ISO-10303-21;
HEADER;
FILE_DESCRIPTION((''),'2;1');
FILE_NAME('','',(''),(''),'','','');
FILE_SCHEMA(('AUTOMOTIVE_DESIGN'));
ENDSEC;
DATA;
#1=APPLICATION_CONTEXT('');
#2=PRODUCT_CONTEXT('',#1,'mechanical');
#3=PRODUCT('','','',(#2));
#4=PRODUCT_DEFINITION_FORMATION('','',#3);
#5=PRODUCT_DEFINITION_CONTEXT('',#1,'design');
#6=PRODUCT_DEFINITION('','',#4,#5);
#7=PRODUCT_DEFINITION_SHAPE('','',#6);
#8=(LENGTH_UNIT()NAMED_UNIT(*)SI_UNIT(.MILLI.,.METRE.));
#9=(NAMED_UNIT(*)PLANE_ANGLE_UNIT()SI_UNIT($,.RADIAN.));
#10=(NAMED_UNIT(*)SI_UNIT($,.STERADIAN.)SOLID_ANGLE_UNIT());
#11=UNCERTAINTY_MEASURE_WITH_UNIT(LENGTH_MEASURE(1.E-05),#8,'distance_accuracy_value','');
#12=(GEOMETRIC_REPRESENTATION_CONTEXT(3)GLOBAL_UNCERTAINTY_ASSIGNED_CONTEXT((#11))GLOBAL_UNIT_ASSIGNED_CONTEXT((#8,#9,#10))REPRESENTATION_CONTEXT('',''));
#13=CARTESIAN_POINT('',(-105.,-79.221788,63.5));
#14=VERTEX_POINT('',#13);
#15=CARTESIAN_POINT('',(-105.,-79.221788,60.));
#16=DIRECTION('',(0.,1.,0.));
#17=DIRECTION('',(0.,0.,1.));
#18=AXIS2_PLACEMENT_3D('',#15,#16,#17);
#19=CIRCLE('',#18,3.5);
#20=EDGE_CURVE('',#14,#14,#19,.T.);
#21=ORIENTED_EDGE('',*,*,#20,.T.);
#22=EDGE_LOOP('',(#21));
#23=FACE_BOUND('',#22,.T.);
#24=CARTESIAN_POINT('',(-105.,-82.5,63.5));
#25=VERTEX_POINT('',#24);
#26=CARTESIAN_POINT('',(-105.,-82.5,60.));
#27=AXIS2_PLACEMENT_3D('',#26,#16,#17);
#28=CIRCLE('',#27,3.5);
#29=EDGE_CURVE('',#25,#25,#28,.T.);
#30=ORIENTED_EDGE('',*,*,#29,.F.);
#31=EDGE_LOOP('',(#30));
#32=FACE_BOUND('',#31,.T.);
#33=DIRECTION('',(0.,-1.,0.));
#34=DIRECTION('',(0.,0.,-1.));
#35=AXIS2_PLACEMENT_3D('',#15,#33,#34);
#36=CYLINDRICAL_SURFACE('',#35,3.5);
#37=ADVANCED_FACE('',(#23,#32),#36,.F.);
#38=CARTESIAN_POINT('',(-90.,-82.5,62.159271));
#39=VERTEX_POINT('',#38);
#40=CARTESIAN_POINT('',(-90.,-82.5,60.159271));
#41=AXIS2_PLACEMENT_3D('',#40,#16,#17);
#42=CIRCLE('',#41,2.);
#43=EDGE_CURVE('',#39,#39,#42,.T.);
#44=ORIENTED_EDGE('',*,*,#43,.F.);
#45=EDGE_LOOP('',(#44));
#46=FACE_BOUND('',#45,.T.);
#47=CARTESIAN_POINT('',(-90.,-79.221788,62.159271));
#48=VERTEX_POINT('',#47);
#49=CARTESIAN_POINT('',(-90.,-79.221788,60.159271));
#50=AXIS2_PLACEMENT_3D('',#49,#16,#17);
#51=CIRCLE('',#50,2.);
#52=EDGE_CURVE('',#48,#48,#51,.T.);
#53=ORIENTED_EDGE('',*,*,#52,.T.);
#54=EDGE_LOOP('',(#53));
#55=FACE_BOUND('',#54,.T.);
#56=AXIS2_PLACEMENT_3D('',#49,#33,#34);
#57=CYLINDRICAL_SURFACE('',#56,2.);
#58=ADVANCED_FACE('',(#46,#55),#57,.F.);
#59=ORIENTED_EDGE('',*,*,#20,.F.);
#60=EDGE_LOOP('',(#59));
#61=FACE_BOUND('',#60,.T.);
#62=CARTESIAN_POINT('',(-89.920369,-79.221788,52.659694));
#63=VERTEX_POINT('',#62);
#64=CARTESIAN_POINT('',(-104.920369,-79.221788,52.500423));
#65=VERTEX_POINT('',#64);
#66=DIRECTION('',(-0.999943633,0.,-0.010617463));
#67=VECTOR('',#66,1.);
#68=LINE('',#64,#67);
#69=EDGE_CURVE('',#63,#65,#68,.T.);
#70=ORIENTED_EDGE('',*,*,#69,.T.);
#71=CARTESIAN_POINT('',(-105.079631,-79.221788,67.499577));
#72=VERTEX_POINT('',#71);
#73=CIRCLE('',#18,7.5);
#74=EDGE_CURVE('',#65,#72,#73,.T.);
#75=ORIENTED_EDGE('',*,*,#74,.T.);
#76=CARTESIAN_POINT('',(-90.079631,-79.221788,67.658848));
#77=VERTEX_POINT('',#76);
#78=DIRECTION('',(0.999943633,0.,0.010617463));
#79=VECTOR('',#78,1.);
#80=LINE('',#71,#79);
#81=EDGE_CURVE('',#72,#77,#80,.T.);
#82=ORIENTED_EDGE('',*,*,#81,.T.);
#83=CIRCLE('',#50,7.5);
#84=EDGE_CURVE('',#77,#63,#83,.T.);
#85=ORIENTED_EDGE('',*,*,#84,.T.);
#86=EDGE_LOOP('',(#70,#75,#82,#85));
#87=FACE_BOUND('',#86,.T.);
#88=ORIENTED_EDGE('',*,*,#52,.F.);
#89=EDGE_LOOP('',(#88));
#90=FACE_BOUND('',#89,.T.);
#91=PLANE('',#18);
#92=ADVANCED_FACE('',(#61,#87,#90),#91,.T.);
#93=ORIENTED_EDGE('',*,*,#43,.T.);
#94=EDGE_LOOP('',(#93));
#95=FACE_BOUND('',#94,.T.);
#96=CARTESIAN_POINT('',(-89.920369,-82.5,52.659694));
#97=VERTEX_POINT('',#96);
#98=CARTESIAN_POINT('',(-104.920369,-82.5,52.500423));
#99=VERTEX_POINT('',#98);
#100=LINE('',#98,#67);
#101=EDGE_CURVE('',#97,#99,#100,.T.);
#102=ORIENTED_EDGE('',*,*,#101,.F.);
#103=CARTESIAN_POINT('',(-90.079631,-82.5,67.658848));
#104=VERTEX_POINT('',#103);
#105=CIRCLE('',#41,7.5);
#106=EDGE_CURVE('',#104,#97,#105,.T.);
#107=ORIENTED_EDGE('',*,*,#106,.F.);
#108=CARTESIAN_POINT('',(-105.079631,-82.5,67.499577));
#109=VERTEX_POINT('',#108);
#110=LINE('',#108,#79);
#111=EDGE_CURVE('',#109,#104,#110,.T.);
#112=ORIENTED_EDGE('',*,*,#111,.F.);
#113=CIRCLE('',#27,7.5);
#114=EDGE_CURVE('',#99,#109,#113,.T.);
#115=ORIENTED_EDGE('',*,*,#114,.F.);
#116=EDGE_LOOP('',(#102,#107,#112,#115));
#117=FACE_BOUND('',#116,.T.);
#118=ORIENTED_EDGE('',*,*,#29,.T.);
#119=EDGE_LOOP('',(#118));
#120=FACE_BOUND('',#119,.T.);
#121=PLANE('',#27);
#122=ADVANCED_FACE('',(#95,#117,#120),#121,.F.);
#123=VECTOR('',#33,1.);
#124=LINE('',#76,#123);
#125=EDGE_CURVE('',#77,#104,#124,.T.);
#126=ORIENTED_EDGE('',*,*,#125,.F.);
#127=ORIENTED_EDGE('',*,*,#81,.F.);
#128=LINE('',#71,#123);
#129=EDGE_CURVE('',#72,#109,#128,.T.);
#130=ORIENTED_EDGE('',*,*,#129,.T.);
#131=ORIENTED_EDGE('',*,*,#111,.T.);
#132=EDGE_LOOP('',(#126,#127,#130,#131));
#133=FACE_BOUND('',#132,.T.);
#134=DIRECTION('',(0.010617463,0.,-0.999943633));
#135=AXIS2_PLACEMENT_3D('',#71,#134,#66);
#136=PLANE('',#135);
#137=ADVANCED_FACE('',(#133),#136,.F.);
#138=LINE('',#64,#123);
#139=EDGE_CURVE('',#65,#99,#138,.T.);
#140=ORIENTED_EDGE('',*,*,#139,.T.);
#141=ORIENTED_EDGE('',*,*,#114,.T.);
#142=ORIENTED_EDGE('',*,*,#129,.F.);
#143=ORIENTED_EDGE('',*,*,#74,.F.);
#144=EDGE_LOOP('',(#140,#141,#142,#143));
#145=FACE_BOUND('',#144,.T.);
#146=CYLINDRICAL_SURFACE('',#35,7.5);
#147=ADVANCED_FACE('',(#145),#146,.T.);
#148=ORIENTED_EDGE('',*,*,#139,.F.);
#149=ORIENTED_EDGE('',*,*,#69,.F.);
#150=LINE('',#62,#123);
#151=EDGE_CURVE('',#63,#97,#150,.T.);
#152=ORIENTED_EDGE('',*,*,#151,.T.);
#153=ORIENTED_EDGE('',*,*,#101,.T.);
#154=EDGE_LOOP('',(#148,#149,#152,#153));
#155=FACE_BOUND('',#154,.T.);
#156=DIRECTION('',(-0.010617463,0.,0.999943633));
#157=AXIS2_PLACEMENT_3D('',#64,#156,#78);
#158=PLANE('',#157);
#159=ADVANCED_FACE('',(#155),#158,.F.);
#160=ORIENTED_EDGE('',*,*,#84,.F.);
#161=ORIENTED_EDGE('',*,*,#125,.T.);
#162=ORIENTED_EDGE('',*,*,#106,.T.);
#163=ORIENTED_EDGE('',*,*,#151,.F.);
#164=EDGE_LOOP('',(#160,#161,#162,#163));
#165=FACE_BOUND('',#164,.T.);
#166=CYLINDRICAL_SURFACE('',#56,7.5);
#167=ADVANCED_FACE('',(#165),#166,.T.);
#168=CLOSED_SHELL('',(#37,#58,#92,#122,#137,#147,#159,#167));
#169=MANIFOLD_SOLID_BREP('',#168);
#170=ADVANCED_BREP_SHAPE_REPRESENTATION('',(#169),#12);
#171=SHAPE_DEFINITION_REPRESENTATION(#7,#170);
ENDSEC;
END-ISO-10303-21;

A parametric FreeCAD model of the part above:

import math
import FreeCAD as App
import Part
import Sketcher
from FreeCAD import Vector

doc = App.newDocument("Part")
body = doc.addObject("PartDesign::Body", "Body")

sketch1 = body.newObject("Sketcher::SketchObject", "Sketch")
sketch1.AttachmentSupport = (doc.getObject("XZ_Plane"), [""])
sketch1.MapMode = "FlatFace"
sketch1.AttachmentOffset = App.Placement(Vector(0, 0, 82.5), App.Rotation())
sketch1.addGeometry([
    Part.LineSegment(Vector(-89.9, 52.7, 0), Vector(-104.9, 52.5, 0)),
    Part.ArcOfCircle(Part.Circle(Vector(-105, 60, 0), Vector(0, 0, 1), 7.5), math.radians(91), math.radians(271)),
    Part.LineSegment(Vector(-105.1, 67.5, 0), Vector(-90.1, 67.7, 0)),
    Part.ArcOfCircle(Part.Circle(Vector(-90, 60.2, 0), Vector(0, 0, 1), 7.5), math.radians(-89), math.radians(91)),
    Part.Circle(Vector(-90, 60.2, 0), Vector(0, 0, 1), 2),
    Part.Circle(Vector(-105, 60, 0), Vector(0, 0, 1), 3.5),
], False)
sketch1.addConstraint([
    Sketcher.Constraint("Tangent", 0, 2, 1, 2),
    Sketcher.Constraint("Tangent", 1, 1, 2, 1),
    Sketcher.Constraint("Tangent", 2, 2, 3, 2),
    Sketcher.Constraint("Tangent", 3, 1, 0, 1),
    Sketcher.Constraint("Coincident", 4, 3, 3, 3),
    Sketcher.Constraint("Coincident", 5, 3, 1, 3),
    Sketcher.Constraint("Equal", 1, 3),
    Sketcher.Constraint("Diameter", 4, 4.0),
    Sketcher.Constraint("Diameter", 5, 7.0),
    Sketcher.Constraint("Radius", 1, 7.5),
    Sketcher.Constraint("DistanceX", 1, 3, -1, 1, 105.0),
    Sketcher.Constraint("DistanceY", -1, 1, 1, 3, 60.0),
    Sketcher.Constraint("DistanceX", 3, 3, -1, 1, 90.0),
    Sketcher.Constraint("DistanceY", -1, 1, 3, 3, 60.159271),
])
pad1 = body.newObject("PartDesign::Pad", "Pad")
pad1.Profile = sketch1
pad1.Length = 3.278212
pad1.Reversed = True

doc.recompute()
